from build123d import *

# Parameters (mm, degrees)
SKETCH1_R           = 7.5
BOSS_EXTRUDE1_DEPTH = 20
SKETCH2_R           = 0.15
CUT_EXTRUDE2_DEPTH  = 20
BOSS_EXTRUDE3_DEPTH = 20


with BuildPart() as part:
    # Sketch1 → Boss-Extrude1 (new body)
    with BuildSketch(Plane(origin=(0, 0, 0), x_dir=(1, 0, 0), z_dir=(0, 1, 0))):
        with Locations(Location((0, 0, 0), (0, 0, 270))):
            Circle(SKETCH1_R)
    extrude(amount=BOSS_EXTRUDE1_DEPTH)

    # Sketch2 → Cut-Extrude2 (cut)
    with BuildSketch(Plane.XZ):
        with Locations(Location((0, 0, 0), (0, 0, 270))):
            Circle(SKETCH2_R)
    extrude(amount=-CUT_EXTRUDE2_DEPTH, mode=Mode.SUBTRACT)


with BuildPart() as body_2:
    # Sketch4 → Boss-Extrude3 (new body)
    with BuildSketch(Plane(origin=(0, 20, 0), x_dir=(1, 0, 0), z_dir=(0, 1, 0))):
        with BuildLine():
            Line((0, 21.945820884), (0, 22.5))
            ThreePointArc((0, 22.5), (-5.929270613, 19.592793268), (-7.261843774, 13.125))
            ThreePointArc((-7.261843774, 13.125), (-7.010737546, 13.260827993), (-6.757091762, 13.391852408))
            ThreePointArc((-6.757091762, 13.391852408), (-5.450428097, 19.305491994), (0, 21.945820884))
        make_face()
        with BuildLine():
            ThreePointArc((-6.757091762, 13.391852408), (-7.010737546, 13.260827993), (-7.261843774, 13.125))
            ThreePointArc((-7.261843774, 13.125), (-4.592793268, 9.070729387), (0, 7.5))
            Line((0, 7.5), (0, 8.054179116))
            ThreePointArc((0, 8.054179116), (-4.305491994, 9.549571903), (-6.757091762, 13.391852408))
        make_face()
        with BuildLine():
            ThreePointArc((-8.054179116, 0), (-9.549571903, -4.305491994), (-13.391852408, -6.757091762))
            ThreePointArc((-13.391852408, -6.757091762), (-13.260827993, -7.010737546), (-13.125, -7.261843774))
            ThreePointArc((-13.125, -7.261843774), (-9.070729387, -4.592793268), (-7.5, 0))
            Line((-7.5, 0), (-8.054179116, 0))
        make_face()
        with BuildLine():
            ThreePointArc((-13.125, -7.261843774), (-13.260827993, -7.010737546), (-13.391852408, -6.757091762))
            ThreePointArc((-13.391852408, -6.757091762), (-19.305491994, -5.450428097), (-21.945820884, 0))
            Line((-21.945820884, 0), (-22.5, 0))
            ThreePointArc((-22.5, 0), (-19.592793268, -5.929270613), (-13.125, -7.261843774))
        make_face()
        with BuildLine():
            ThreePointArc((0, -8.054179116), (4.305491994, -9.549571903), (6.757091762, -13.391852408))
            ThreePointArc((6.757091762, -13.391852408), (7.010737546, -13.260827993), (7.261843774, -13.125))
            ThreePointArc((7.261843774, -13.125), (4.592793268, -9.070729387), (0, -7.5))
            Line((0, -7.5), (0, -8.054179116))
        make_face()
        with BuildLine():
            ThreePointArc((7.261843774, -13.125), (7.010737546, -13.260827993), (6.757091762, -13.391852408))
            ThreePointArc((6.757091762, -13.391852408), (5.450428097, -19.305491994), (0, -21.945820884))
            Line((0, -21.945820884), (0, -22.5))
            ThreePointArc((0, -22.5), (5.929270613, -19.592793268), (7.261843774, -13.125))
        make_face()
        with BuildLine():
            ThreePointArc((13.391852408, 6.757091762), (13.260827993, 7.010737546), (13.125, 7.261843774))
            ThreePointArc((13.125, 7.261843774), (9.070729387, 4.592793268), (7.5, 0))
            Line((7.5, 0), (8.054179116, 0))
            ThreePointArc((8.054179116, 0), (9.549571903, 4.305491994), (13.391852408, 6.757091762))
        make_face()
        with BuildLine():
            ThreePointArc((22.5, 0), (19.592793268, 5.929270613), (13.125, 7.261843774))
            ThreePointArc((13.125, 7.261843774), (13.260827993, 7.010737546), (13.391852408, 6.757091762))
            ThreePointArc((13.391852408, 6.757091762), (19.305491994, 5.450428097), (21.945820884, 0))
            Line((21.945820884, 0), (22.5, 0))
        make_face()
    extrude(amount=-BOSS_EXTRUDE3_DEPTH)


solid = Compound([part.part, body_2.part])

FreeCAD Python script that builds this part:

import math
import FreeCAD as App
import Part
import Sketcher
from FreeCAD import Vector
Q = App.Units.Quantity

doc = App.newDocument("Part")
body = doc.addObject("PartDesign::Body", "Body")

sketch1 = body.newObject("Sketcher::SketchObject", "Sketch")
sketch1.AttachmentSupport = (doc.getObject("XZ_Plane"), [""])
sketch1.MapMode = "FlatFace"
sketch1.addGeometry(Part.Circle(Vector(0, 0, 0), Vector(0, 0, 1), 8), False)
sketch1.addConstraint(Sketcher.Constraint("Coincident", 0, 3, -1, 1))
sketch1.addConstraint(Sketcher.Constraint("Diameter", 0, Q("15 mm")))
pad1 = body.newObject("PartDesign::Pad", "Pad")
pad1.Profile = sketch1
pad1.Length = 20
pad1.Reversed = True

sketch2 = body.newObject("Sketcher::SketchObject", "Sketch001")
sketch2.AttachmentSupport = (doc.getObject("XZ_Plane"), [""])
sketch2.MapMode = "FlatFace"
sketch2.addGeometry(Part.Circle(Vector(0, 0, 0), Vector(0, 0, 1), 0.15), False)
sketch2.addConstraint(Sketcher.Constraint("Coincident", 0, 3, -1, 1))
sketch2.addConstraint(Sketcher.Constraint("Diameter", 0, Q("0.3 mm")))
pocket1 = body.newObject("PartDesign::Pocket", "Pocket")
pocket1.Profile = sketch2
pocket1.Length = 20
body2 = doc.addObject("PartDesign::Body", "Body001")
body2.AllowCompound = True

sketch3 = body2.newObject("Sketcher::SketchObject", "Sketch002")
sketch3.AttachmentSupport = (doc.getObject("XZ_Plane001"), [""])
sketch3.MapMode = "FlatFace"
sketch3.AttachmentOffset = App.Placement(Vector(0, 0, -20), App.Rotation())
sketch3.addGeometry(Part.LineSegment(Vector(0, -21.9, 0), Vector(0, -22.5, 0)), False)
sketch3.addGeometry(Part.ArcOfCircle(Part.Circle(Vector(0, -15, 0), Vector(0, 0, 1), 7.5), math.radians(166), math.radians(270)), False)
sketch3.addGeometry(Part.ArcOfCircle(Part.Circle(Vector(0, -15, 0), Vector(0, 0, 1), 7.5), math.radians(90), math.radians(166)), False)
sketch3.addGeometry(Part.LineSegment(Vector(0, -7.5, 0), Vector(0, -8.1, 0)), False)
sketch3.addGeometry(Part.ArcOfCircle(Part.Circle(Vector(0, -15, 0), Vector(0, 0, 1), 6.9), math.radians(90), math.radians(167)), False)
sketch3.addGeometry(Part.ArcOfCircle(Part.Circle(Vector(0, -15, 0), Vector(0, 0, 1), 6.9), math.radians(167), math.radians(270)), False)
sketch3.addGeometry(Part.ArcOfCircle(Part.Circle(Vector(-15, 0, 0), Vector(0, 0, 1), 6.9), math.radians(0), math.radians(77)), False)
sketch3.addGeometry(Part.ArcOfCircle(Part.Circle(Vector(-15, 0, 0), Vector(0, 0, 1), 6.9), math.radians(77), math.radians(180)), False)
sketch3.addGeometry(Part.LineSegment(Vector(-21.9, 0, 0), Vector(-22.5, 0, 0)), False)
sketch3.addGeometry(Part.ArcOfCircle(Part.Circle(Vector(-15, 0, 0), Vector(0, 0, 1), 7.5), math.radians(76), math.radians(180)), False)
sketch3.addGeometry(Part.ArcOfCircle(Part.Circle(Vector(-15, 0, 0), Vector(0, 0, 1), 7.5), math.radians(0), math.radians(76)), False)
sketch3.addGeometry(Part.LineSegment(Vector(-7.5, 0, 0), Vector(-8.1, 0, 0)), False)
sketch3.addGeometry(Part.ArcOfCircle(Part.Circle(Vector(0, 15, 0), Vector(0, 0, 1), 6.9), math.radians(-90), math.radians(-13)), False)
sketch3.addGeometry(Part.ArcOfCircle(Part.Circle(Vector(0, 15, 0), Vector(0, 0, 1), 6.9), math.radians(-13), math.radians(90)), False)
sketch3.addGeometry(Part.LineSegment(Vector(0, 21.9, 0), Vector(0, 22.5, 0)), False)
sketch3.addGeometry(Part.ArcOfCircle(Part.Circle(Vector(0, 15, 0), Vector(0, 0, 1), 7.5), math.radians(-14), math.radians(90)), False)
sketch3.addGeometry(Part.ArcOfCircle(Part.Circle(Vector(0, 15, 0), Vector(0, 0, 1), 7.5), math.radians(-90), math.radians(-14)), False)
sketch3.addGeometry(Part.LineSegment(Vector(0, 7.5, 0), Vector(0, 8.1, 0)), False)
sketch3.addGeometry(Part.ArcOfCircle(Part.Circle(Vector(15, 0, 0), Vector(0, 0, 1), 7.5), math.radians(180), math.radians(256)), False)
sketch3.addGeometry(Part.LineSegment(Vector(7.5, 0, 0), Vector(8.1, 0, 0)), False)
sketch3.addGeometry(Part.ArcOfCircle(Part.Circle(Vector(15, 0, 0), Vector(0, 0, 1), 6.9), math.radians(-180), math.radians(-103)), False)
sketch3.addGeometry(Part.ArcOfCircle(Part.Circle(Vector(15, 0, 0), Vector(0, 0, 1), 6.9), math.radians(-103), math.radians(0)), False)
sketch3.addGeometry(Part.LineSegment(Vector(21.9, 0, 0), Vector(22.5, 0, 0)), False)
sketch3.addGeometry(Part.ArcOfCircle(Part.Circle(Vector(15, 0, 0), Vector(0, 0, 1), 7.5), math.radians(-104), math.radians(0)), False)
sketch3.addConstraint(Sketcher.Constraint("Coincident", 0, 2, 1, 2))
sketch3.addConstraint(Sketcher.Constraint("Tangent", 1, 1, 2, 2))
sketch3.addConstraint(Sketcher.Constraint("Coincident", 2, 1, 3, 1))
sketch3.addConstraint(Sketcher.Constraint("Coincident", 3, 2, 4, 1))
sketch3.addConstraint(Sketcher.Constraint("Tangent", 4, 2, 5, 1))
sketch3.addConstraint(Sketcher.Constraint("Coincident", 5, 2, 0, 1))
sketch3.addConstraint(Sketcher.Constraint("Tangent", 6, 2, 7, 1))
sketch3.addConstraint(Sketcher.Constraint("Coincident", 7, 2, 8, 1))
sketch3.addConstraint(Sketcher.Constraint("Coincident", 8, 2, 9, 2))
sketch3.addConstraint(Sketcher.Constraint("Tangent", 9, 1, 10, 2))
sketch3.addConstraint(Sketcher.Constraint("Coincident", 10, 1, 11, 1))
sketch3.addConstraint(Sketcher.Constraint("Coincident", 11, 2, 6, 1))
sketch3.addConstraint(Sketcher.Constraint("Tangent", 12, 2, 13, 1))
sketch3.addConstraint(Sketcher.Constraint("Coincident", 13, 2, 14, 1))
sketch3.addConstraint(Sketcher.Constraint("Coincident", 14, 2, 15, 2))
sketch3.addConstraint(Sketcher.Constraint("Tangent", 15, 1, 16, 2))
sketch3.addConstraint(Sketcher.Constraint("Coincident", 16, 1, 17, 1))
sketch3.addConstraint(Sketcher.Constraint("Coincident", 17, 2, 12, 1))
sketch3.addConstraint(Sketcher.Constraint("Coincident", 18, 1, 19, 1))
sketch3.addConstraint(Sketcher.Constraint("Coincident", 19, 2, 20, 1))
sketch3.addConstraint(Sketcher.Constraint("Tangent", 20, 2, 21, 1))
sketch3.addConstraint(Sketcher.Constraint("Coincident", 21, 2, 22, 1))
sketch3.addConstraint(Sketcher.Constraint("Coincident", 22, 2, 23, 2))
sketch3.addConstraint(Sketcher.Constraint("Tangent", 23, 1, 18, 2))
sketch3.addConstraint(Sketcher.Constraint("Vertical", 0))
sketch3.addConstraint(Sketcher.Constraint("Vertical", 3))
sketch3.addConstraint(Sketcher.Constraint("Horizontal", 8))
sketch3.addConstraint(Sketcher.Constraint("Horizontal", 11))
sketch3.addConstraint(Sketcher.Constraint("Vertical", 14))
sketch3.addConstraint(Sketcher.Constraint("Vertical", 17))
sketch3.addConstraint(Sketcher.Constraint("Horizontal", 19))
sketch3.addConstraint(Sketcher.Constraint("Horizontal", 22))
sketch3.addConstraint(Sketcher.Constraint("Coincident", 4, 3, 1, 3))
sketch3.addConstraint(Sketcher.Constraint("Coincident", 9, 3, 6, 3))
sketch3.addConstraint(Sketcher.Constraint("Coincident", 15, 3, 12, 3))
sketch3.addConstraint(Sketcher.Constraint("Coincident", 20, 3, 18, 3))
sketch3.addConstraint(Sketcher.Constraint("Equal", 1, 2))
sketch3.addConstraint(Sketcher.Constraint("Equal", 4, 5))
sketch3.addConstraint(Sketcher.Constraint("Equal", 5, 6))
sketch3.addConstraint(Sketcher.Constraint("Equal", 6, 7))
sketch3.addConstraint(Sketcher.Constraint("Equal", 2, 9))
sketch3.addConstraint(Sketcher.Constraint("Equal", 9, 10))
sketch3.addConstraint(Sketcher.Constraint("Equal", 7, 12))
sketch3.addConstraint(Sketcher.Constraint("Equal", 12, 13))
sketch3.addConstraint(Sketcher.Constraint("Equal", 10, 15))
sketch3.addConstraint(Sketcher.Constraint("Equal", 15, 16))
sketch3.addConstraint(Sketcher.Constraint("Equal", 16, 18))
sketch3.addConstraint(Sketcher.Constraint("Equal", 13, 20))
sketch3.addConstraint(Sketcher.Constraint("Equal", 20, 21))
sketch3.addConstraint(Sketcher.Constraint("Equal", 18, 23))
sketch3.addConstraint(Sketcher.Constraint("Symmetric", 1, 3, 12, 3, -1, 1))
sketch3.addConstraint(Sketcher.Constraint("Symmetric", 6, 3, 18, 3, -1, 1))
sketch3.addConstraint(Sketcher.Constraint("PointOnObject", 1, 3, -2))
sketch3.addConstraint(Sketcher.Constraint("PointOnObject", 6, 3, -1))
sketch3.addConstraint(Sketcher.Constraint("PointOnObject", 0, 2, -2))
sketch3.addConstraint(Sketcher.Constraint("PointOnObject", 2, 1, -2))
sketch3.addConstraint(Sketcher.Constraint("PointOnObject", 7, 2, -1))
sketch3.addConstraint(Sketcher.Constraint("PointOnObject", 10, 1, -1))
sketch3.addConstraint(Sketcher.Constraint("PointOnObject", 13, 2, -2))
sketch3.addConstraint(Sketcher.Constraint("PointOnObject", 16, 1, -2))
sketch3.addConstraint(Sketcher.Constraint("PointOnObject", 18, 1, -1))
sketch3.addConstraint(Sketcher.Constraint("PointOnObject", 21, 2, -1))
sketch3.addConstraint(Sketcher.Constraint("Radius", 1, Q("7.5 mm")))
sketch3.addConstraint(Sketcher.Constraint("DistanceY", 1, 3, -1, 1, Q("15 mm")))
sketch3.addConstraint(Sketcher.Constraint("DistanceX", 6, 3, -1, 1, Q("15 mm")))
sketch3.addConstraint(Sketcher.Constraint("Radius", 4, Q("6.945821 mm")))
sketch3.addConstraint(Sketcher.Constraint("DistanceY", 1, 1, -1, 1, Q("13.125 mm")))
sketch3.addConstraint(Sketcher.Constraint("DistanceX", 9, 1, -1, 1, Q("13.125 mm")))
sketch3.addConstraint(Sketcher.Constraint("DistanceY", -1, 1, 15, 1, Q("13.125 mm")))
sketch3.addConstraint(Sketcher.Constraint("DistanceX", -1, 1, 23, 1, Q("13.125 mm")))
sketch3.addConstraint(Sketcher.Constraint("DistanceX", 4, 2, -1, 1, Q("6.757092 mm")))
sketch3.addConstraint(Sketcher.Constraint("DistanceY", -1, 1, 6, 2, Q("6.757092 mm")))
sketch3.addConstraint(Sketcher.Constraint("DistanceX", -1, 1, 12, 2, Q("6.757092 mm")))
sketch3.addConstraint(Sketcher.Constraint("DistanceY", 20, 2, -1, 1, Q("6.757092 mm")))
pad2 = body2.newObject("PartDesign::Pad", "Pad001")
pad2.Profile = sketch3
pad2.Length = 20

doc.recompute()
